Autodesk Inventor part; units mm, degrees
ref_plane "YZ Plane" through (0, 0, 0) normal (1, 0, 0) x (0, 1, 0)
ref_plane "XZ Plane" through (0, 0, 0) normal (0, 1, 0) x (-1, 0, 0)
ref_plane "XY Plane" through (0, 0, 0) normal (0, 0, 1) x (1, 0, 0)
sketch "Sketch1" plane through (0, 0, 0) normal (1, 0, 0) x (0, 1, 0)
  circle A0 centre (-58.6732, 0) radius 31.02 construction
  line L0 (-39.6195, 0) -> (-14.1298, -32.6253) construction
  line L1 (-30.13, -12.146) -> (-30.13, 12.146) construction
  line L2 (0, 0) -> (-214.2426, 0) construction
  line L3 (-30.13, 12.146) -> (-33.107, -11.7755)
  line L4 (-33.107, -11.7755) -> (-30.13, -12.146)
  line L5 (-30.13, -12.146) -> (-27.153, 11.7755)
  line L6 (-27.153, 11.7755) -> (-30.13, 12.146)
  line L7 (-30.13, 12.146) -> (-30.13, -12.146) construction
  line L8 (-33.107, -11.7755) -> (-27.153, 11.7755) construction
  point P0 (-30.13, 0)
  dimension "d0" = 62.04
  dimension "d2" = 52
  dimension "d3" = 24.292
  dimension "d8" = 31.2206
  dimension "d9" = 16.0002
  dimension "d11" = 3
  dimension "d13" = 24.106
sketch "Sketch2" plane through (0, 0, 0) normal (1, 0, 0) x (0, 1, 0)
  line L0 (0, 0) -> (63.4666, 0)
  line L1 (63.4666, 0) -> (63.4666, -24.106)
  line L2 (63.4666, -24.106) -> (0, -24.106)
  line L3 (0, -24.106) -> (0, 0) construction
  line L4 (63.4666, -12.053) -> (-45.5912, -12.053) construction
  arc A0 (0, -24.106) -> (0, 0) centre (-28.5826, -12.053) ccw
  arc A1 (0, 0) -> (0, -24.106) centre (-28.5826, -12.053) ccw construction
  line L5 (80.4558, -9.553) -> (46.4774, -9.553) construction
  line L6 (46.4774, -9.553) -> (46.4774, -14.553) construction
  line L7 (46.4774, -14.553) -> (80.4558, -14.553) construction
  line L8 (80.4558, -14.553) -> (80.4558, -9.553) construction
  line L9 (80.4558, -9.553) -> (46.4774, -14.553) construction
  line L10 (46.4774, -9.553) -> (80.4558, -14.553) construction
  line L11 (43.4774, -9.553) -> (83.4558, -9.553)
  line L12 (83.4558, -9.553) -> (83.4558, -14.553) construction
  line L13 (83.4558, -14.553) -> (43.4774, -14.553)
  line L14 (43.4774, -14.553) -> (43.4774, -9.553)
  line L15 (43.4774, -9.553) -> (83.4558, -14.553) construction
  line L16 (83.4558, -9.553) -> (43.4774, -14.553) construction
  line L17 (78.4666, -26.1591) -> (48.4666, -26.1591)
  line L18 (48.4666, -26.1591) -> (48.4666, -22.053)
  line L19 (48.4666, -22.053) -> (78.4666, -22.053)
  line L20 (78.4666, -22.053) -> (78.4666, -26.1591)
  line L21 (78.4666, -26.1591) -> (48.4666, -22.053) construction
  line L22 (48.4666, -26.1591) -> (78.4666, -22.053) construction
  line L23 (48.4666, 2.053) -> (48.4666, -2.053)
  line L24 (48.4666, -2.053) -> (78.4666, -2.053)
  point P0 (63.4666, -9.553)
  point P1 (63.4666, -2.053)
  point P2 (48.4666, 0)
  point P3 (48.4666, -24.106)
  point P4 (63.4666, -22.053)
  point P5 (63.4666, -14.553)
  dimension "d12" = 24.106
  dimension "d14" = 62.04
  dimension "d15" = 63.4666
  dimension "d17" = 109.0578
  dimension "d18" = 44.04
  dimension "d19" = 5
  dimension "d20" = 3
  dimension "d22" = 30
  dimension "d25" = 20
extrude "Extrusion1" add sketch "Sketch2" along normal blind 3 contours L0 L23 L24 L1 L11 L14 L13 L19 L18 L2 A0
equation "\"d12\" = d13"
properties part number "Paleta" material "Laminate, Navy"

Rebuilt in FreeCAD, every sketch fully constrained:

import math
import FreeCAD as App
import Part
import Sketcher
from FreeCAD import Vector
Q = App.Units.Quantity

doc = App.newDocument("Part")
body = doc.addObject("PartDesign::Body", "Body")

# Sketch on YZ plane
sketch1 = doc.addObject("Sketcher::SketchObject", "Sketch")
body.addObject(sketch1)
sketch1.AttachmentSupport = (doc.YZ_Plane, [""])
sketch1.MapMode = "FlatFace"
sketch1.addGeometry(Part.LineSegment(Vector(48.5, 0, 0), Vector(0, 0, 0)), False)
sketch1.addGeometry(Part.ArcOfCircle(Part.Circle(Vector(-28.6, -12.1, 0), Vector(0, 0, 1), 31), math.radians(-23), math.radians(23)), False)
sketch1.addGeometry(Part.LineSegment(Vector(0, -24.1, 0), Vector(48.5, -24.1, 0)), False)
sketch1.addGeometry(Part.LineSegment(Vector(48.5, -24.1, 0), Vector(48.5, -22.1, 0)), False)
sketch1.addGeometry(Part.LineSegment(Vector(48.5, -22.1, 0), Vector(63.5, -22.1, 0)), False)
sketch1.addGeometry(Part.LineSegment(Vector(63.5, -22.1, 0), Vector(63.5, -14.6, 0)), False)
sketch1.addGeometry(Part.LineSegment(Vector(63.5, -14.6, 0), Vector(43.5, -14.6, 0)), False)
sketch1.addGeometry(Part.LineSegment(Vector(43.5, -14.6, 0), Vector(43.5, -9.6, 0)), False)
sketch1.addGeometry(Part.LineSegment(Vector(43.5, -9.6, 0), Vector(63.5, -9.6, 0)), False)
sketch1.addGeometry(Part.LineSegment(Vector(63.5, -9.6, 0), Vector(63.5, -2.1, 0)), False)
sketch1.addGeometry(Part.LineSegment(Vector(63.5, -2.1, 0), Vector(48.5, -2.1, 0)), False)
sketch1.addGeometry(Part.LineSegment(Vector(48.5, -2.1, 0), Vector(48.5, 0, 0)), False)
sketch1.addConstraint(Sketcher.Constraint("Coincident", 0, 2, 1, 2))
sketch1.addConstraint(Sketcher.Constraint("Coincident", 1, 1, 2, 1))
sketch1.addConstraint(Sketcher.Constraint("Coincident", 2, 2, 3, 1))
sketch1.addConstraint(Sketcher.Constraint("Coincident", 3, 2, 4, 1))
sketch1.addConstraint(Sketcher.Constraint("Coincident", 4, 2, 5, 1))
sketch1.addConstraint(Sketcher.Constraint("Coincident", 5, 2, 6, 1))
sketch1.addConstraint(Sketcher.Constraint("Coincident", 6, 2, 7, 1))
sketch1.addConstraint(Sketcher.Constraint("Coincident", 7, 2, 8, 1))
sketch1.addConstraint(Sketcher.Constraint("Coincident", 8, 2, 9, 1))
sketch1.addConstraint(Sketcher.Constraint("Coincident", 9, 2, 10, 1))
sketch1.addConstraint(Sketcher.Constraint("Coincident", 10, 2, 11, 1))
sketch1.addConstraint(Sketcher.Constraint("Coincident", 11, 2, 0, 1))
sketch1.addConstraint(Sketcher.Constraint("Horizontal", 0))
sketch1.addConstraint(Sketcher.Constraint("Horizontal", 2))
sketch1.addConstraint(Sketcher.Constraint("Vertical", 3))
sketch1.addConstraint(Sketcher.Constraint("Horizontal", 4))
sketch1.addConstraint(Sketcher.Constraint("Vertical", 5))
sketch1.addConstraint(Sketcher.Constraint("Horizontal", 6))
sketch1.addConstraint(Sketcher.Constraint("Vertical", 7))
sketch1.addConstraint(Sketcher.Constraint("Horizontal", 8))
sketch1.addConstraint(Sketcher.Constraint("Vertical", 9))
sketch1.addConstraint(Sketcher.Constraint("Horizontal", 10))
sketch1.addConstraint(Sketcher.Constraint("Vertical", 11))
sketch1.addConstraint(Sketcher.Constraint("Coincident", 0, 2, -1, 1))
sketch1.addConstraint(Sketcher.Constraint("PointOnObject", 1, 1, -2))
sketch1.addConstraint(Sketcher.Constraint("Vertical", 5, 2, 8, 2))
sketch1.addConstraint(Sketcher.Constraint("Vertical", 3, 2, 10, 2))
sketch1.addConstraint(Sketcher.Constraint("Equal", 5, 9))
sketch1.addConstraint(Sketcher.Constraint("Equal", 3, 11))
sketch1.addConstraint(Sketcher.Constraint("DistanceY", 7, 1, 7, 2, Q("5 mm")))
sketch1.addConstraint(Sketcher.Constraint("Radius", 1, Q("31.02 mm")))
sketch1.addConstraint(Sketcher.Constraint("DistanceY", 4, 2, 9, 2, Q("20 mm")))
sketch1.addConstraint(Sketcher.Constraint("DistanceX", 4, 1, 4, 2, Q("15 mm")))
sketch1.addConstraint(Sketcher.Constraint("DistanceY", 1, 1, -1, 1, Q("24.106 mm")))
sketch1.addConstraint(Sketcher.Constraint("DistanceX", -1, 1, 4, 2, Q("63.4666 mm")))
sketch1.addConstraint(Sketcher.Constraint("DistanceX", 6, 2, 6, 1, Q("19.9892 mm")))
pad1 = doc.addObject("PartDesign::Pad", "Pad")
body.addObject(pad1)
pad1.Profile = sketch1
pad1.Length = 3

doc.recompute()
